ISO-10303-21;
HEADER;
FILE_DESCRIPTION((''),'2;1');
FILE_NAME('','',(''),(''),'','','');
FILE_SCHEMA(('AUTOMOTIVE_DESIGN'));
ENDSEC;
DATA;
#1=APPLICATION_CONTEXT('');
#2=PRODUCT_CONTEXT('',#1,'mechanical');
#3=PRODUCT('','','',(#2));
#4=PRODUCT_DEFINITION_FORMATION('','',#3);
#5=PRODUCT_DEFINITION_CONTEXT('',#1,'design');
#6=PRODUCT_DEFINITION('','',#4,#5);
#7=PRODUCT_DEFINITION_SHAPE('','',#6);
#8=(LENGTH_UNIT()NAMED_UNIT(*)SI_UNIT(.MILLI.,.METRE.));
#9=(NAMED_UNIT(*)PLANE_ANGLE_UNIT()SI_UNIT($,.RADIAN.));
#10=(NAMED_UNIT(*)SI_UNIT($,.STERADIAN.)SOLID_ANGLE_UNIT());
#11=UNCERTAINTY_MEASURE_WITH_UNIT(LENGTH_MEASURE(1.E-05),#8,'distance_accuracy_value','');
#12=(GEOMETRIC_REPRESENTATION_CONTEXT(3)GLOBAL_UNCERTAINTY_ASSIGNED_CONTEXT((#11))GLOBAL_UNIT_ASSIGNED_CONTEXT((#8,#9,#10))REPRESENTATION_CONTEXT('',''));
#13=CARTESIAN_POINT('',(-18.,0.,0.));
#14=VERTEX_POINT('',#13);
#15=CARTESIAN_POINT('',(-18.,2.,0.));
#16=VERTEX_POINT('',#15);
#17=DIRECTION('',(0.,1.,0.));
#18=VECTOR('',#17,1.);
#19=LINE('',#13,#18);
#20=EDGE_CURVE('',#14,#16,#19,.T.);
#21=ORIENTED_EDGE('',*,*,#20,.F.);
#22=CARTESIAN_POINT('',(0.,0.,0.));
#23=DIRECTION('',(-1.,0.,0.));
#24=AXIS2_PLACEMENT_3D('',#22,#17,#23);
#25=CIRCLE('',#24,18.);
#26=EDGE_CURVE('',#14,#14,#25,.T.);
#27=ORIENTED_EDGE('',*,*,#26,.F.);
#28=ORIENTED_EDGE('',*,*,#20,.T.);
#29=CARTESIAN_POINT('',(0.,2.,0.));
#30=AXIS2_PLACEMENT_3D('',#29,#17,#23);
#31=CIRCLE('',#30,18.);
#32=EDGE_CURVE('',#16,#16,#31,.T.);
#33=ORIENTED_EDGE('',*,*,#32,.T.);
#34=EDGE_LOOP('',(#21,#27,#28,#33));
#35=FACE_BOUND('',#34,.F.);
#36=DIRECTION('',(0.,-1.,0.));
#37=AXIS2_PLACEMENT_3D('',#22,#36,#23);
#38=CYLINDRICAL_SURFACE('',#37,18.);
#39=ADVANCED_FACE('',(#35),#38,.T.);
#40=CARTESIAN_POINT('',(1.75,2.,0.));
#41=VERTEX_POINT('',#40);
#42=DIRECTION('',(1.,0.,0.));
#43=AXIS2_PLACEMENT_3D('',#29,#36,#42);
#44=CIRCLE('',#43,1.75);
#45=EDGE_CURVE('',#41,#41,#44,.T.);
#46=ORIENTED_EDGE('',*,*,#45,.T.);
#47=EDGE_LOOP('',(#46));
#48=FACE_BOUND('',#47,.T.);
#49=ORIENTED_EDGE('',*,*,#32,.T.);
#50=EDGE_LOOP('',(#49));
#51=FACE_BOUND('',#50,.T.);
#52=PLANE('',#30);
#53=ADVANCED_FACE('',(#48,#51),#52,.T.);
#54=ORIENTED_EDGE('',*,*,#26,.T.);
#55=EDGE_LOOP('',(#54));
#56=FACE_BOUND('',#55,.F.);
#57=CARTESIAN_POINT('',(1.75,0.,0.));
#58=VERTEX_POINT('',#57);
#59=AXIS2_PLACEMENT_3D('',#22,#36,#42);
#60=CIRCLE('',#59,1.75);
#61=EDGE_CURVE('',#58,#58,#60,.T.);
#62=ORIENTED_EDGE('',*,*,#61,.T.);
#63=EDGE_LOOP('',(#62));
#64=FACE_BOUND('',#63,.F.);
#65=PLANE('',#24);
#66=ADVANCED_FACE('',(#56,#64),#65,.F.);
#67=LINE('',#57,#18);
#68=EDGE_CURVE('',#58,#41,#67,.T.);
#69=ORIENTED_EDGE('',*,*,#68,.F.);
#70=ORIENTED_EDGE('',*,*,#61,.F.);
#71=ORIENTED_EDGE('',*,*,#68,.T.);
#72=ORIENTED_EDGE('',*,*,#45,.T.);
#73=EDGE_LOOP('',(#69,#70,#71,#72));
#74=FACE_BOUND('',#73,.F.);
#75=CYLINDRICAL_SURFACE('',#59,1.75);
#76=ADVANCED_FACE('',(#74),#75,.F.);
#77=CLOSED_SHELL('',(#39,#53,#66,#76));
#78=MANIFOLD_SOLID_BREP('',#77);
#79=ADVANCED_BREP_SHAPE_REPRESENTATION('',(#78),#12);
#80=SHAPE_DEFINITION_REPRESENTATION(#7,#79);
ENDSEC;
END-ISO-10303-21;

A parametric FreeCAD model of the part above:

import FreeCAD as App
import Part
import Sketcher

doc = App.newDocument("Part")
params = doc.addObject("Spreadsheet::Sheet", "Params")
for row, (alias, value) in enumerate([
    ("sketch1_diameter", "36 mm"),
    ("pad1_length", "2 mm"),
    ("sketch2_diameter", "3.5 mm"),
    ("pocket1_length", "10.2 mm"),
], start=1):
    params.set(f"A{row}", alias)
    params.set(f"B{row}", "=" + value)
    params.setAlias(f"B{row}", alias)

body = doc.addObject("PartDesign::Body", "Body")

# Sketch on XZ plane
sketch1 = body.newObject("Sketcher::SketchObject", "Sketch")
sketch1.AttachmentSupport = (doc.getObject("XZ_Plane"), [""])
sketch1.MapMode = "FlatFace"
sketch1.addGeometry(Part.Circle(App.Vector(0, 0, 0), App.Vector(0, 0, 1), 18), False)
sketch1.addConstraint([
    Sketcher.Constraint("Coincident", 0, 3, -1, 1),
    Sketcher.Constraint("Diameter", 0, 36.0),
])
sketch1.setExpression("Constraints[1]", "Params.sketch1_diameter")
pad1 = body.newObject("PartDesign::Pad", "Pad")
pad1.Profile = sketch1
pad1.setExpression("Length", "Params.pad1_length")
pad1.Reversed = True

# Sketch on XZ plane
sketch2 = body.newObject("Sketcher::SketchObject", "Sketch001")
sketch2.AttachmentSupport = (doc.getObject("XZ_Plane"), [""])
sketch2.MapMode = "FlatFace"
sketch2.addGeometry(Part.Circle(App.Vector(0, 0, 0), App.Vector(0, 0, 1), 1.8), False)
sketch2.addConstraint([
    Sketcher.Constraint("Coincident", 0, 3, -1, 1),
    Sketcher.Constraint("Diameter", 0, 3.5),
])
sketch2.setExpression("Constraints[1]", "Params.sketch2_diameter")
pocket1 = body.newObject("PartDesign::Pocket", "Pocket")
pocket1.Profile = sketch2
pocket1.setExpression("Length", "Params.pocket1_length")

doc.recompute()
